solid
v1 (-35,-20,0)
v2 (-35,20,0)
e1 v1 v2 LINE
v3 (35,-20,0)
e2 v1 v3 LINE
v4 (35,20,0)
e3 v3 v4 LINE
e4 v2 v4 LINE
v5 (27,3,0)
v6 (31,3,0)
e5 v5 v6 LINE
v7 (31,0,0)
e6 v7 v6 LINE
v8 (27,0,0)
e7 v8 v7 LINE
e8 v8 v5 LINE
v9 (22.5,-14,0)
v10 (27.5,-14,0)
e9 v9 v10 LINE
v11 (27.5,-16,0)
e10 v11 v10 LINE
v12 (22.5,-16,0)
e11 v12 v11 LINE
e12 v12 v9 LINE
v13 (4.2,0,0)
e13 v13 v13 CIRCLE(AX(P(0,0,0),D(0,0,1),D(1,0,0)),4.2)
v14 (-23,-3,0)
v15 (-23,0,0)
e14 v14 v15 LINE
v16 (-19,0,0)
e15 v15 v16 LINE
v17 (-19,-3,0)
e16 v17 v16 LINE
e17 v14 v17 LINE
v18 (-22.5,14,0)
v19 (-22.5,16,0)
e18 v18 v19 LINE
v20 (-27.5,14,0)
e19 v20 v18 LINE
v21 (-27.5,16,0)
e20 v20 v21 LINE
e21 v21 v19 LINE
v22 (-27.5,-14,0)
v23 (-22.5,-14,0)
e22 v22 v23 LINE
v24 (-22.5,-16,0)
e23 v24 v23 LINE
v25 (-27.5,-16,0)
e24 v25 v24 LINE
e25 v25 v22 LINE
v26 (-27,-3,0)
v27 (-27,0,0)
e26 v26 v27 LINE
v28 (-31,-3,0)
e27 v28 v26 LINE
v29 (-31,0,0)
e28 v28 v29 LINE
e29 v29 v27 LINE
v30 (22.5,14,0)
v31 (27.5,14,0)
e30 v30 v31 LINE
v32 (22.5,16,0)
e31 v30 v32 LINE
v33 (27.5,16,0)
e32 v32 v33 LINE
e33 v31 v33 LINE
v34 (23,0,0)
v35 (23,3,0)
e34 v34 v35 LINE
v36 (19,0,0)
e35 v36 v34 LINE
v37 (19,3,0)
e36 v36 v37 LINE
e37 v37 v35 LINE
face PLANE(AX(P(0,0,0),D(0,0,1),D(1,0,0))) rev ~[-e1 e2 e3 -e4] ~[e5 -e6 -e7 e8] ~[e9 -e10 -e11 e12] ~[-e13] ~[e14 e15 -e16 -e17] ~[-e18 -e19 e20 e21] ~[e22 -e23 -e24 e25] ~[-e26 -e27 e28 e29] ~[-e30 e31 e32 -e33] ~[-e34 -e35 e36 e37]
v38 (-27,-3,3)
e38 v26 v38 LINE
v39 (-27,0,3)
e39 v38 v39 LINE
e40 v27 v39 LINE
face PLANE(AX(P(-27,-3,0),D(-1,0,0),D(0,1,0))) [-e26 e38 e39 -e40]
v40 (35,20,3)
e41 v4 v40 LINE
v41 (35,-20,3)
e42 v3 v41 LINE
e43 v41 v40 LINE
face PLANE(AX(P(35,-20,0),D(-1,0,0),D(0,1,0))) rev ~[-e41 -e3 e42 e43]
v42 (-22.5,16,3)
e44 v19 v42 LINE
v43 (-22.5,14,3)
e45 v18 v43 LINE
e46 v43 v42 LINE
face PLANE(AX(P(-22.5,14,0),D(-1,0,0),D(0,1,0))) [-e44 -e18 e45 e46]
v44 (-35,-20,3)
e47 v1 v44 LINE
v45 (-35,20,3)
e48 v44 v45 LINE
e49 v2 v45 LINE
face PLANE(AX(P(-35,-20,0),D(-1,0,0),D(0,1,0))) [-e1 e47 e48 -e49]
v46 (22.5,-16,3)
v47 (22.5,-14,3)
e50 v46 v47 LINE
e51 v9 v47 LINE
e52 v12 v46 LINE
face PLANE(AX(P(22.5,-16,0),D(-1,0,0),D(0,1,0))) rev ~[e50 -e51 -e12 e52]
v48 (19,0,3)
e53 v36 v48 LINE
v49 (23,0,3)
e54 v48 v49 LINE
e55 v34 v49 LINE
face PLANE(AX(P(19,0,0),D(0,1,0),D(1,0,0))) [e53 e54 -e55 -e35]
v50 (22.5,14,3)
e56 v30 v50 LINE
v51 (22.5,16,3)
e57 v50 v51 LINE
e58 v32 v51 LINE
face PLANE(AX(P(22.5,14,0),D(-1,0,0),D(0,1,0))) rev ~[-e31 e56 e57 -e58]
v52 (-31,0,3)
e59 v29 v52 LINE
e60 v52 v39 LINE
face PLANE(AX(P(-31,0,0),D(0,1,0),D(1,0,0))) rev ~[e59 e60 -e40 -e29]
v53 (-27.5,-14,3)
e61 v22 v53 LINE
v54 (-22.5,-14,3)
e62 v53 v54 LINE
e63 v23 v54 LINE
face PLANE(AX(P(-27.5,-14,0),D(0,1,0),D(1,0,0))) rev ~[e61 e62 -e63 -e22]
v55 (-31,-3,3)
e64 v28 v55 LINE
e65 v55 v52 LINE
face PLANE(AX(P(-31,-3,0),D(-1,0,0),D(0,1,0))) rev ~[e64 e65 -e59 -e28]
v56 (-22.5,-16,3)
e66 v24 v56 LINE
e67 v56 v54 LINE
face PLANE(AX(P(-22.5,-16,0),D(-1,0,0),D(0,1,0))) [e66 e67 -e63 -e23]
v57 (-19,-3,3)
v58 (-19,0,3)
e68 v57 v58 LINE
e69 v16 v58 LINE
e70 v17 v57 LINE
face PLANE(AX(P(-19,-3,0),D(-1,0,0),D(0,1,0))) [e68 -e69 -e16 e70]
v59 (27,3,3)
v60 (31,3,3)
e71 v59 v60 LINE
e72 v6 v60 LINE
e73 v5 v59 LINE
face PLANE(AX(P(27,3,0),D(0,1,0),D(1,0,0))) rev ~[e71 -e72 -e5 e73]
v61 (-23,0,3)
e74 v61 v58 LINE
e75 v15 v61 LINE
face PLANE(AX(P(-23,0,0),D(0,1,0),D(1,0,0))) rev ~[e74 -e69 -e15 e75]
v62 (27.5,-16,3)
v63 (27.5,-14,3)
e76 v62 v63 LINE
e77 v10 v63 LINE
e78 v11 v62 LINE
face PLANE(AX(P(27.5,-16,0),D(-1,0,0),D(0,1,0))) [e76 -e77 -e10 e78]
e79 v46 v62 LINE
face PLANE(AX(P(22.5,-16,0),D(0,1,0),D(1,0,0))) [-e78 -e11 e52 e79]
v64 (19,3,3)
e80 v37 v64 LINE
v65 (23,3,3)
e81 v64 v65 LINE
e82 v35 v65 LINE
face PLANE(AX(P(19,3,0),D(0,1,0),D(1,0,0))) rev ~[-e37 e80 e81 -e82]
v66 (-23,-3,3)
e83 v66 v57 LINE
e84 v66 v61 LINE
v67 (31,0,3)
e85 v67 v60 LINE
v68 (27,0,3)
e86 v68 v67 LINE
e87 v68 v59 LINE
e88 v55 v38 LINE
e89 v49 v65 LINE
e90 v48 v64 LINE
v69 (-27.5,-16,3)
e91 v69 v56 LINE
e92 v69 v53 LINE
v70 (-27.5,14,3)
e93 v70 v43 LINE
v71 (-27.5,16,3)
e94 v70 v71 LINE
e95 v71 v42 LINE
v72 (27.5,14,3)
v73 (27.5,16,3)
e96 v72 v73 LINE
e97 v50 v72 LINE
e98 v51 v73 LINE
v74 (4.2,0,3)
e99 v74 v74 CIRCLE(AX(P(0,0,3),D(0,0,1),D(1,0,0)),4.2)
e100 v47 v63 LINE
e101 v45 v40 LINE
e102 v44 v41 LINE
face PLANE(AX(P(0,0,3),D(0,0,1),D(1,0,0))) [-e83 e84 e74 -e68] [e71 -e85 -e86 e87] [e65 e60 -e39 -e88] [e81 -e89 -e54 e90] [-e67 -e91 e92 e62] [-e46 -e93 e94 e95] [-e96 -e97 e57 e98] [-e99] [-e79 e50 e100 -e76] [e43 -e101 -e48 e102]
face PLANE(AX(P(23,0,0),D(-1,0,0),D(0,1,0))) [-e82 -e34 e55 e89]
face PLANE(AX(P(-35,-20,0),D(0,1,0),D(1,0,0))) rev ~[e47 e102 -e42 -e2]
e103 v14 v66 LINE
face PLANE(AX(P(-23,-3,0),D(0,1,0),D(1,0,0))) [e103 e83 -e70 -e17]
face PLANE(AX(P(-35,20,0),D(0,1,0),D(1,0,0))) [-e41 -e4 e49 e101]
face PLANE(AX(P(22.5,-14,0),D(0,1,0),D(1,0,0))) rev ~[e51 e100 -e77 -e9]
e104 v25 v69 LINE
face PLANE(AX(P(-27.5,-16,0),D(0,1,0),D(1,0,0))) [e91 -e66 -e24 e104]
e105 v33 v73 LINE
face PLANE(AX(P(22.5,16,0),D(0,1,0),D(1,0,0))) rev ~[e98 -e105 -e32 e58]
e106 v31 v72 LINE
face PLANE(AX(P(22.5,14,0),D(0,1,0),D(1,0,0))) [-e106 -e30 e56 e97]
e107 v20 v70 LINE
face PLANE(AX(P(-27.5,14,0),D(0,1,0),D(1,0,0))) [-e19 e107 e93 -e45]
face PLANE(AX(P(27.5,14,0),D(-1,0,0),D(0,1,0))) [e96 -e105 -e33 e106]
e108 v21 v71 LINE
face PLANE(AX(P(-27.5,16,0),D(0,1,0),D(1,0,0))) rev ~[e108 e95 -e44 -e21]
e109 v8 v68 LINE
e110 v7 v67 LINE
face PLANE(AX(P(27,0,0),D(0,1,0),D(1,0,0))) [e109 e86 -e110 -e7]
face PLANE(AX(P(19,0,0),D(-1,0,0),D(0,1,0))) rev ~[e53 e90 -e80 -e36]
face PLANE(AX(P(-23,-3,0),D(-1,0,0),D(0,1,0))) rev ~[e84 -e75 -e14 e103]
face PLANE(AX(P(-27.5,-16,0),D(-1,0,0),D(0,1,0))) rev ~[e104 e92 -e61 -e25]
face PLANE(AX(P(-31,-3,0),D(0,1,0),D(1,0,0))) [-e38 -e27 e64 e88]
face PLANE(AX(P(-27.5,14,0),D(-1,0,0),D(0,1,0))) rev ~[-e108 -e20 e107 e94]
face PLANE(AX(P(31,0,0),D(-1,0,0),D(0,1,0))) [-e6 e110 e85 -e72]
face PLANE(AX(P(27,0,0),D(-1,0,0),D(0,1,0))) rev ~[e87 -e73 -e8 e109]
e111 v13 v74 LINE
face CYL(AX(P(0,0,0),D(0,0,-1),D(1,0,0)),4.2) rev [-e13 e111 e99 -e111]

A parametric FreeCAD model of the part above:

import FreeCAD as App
import Part
import Sketcher

doc = App.newDocument("Part")
params = doc.addObject("Spreadsheet::Sheet", "Params")
for row, (alias, value) in enumerate([
    ("sketch1_diameter", "8.4 mm"),
    ("sketch1_width", "70 mm"),
    ("sketch1_width2", "5 mm"),
    ("sketch1_width3", "4 mm"),
    ("sketch1_height", "40 mm"),
    ("pad1_length", "3 mm"),
], start=1):
    params.set(f"A{row}", alias)
    params.set(f"B{row}", "=" + value)
    params.setAlias(f"B{row}", alias)

body = doc.addObject("PartDesign::Body", "Body")

# Sketch on XY plane
sketch1 = body.newObject("Sketcher::SketchObject", "Sketch")
sketch1.AttachmentSupport = (doc.getObject("XY_Plane"), [""])
sketch1.MapMode = "FlatFace"
sketch1.addGeometry([
    Part.LineSegment(App.Vector(-35, 20, 0), App.Vector(-35, -20, 0)),  # 0
    Part.LineSegment(App.Vector(-35, -20, 0), App.Vector(35, -20, 0)),  # 1
    Part.LineSegment(App.Vector(35, -20, 0), App.Vector(35, 20, 0)),  # 2
    Part.LineSegment(App.Vector(35, 20, 0), App.Vector(-35, 20, 0)),  # 3
    Part.LineSegment(App.Vector(-22.5, -16, 0), App.Vector(-27.5, -16, 0)),  # 4
    Part.LineSegment(App.Vector(-27.5, -16, 0), App.Vector(-27.5, -14, 0)),  # 5
    Part.LineSegment(App.Vector(-27.5, -14, 0), App.Vector(-22.5, -14, 0)),  # 6
    Part.LineSegment(App.Vector(-22.5, -14, 0), App.Vector(-22.5, -16, 0)),  # 7
    Part.LineSegment(App.Vector(-27, -3, 0), App.Vector(-31, -3, 0)),  # 8
    Part.LineSegment(App.Vector(-31, -3, 0), App.Vector(-31, 0, 0)),  # 9
    Part.LineSegment(App.Vector(-31, 0, 0), App.Vector(-27, 0, 0)),  # 10
    Part.LineSegment(App.Vector(-27, 0, 0), App.Vector(-27, -3, 0)),  # 11
    Part.LineSegment(App.Vector(-19, -3, 0), App.Vector(-23, -3, 0)),  # 12
    Part.LineSegment(App.Vector(-23, -3, 0), App.Vector(-23, 0, 0)),  # 13
    Part.LineSegment(App.Vector(-23, 0, 0), App.Vector(-19, 0, 0)),  # 14
    Part.LineSegment(App.Vector(-19, 0, 0), App.Vector(-19, -3, 0)),  # 15
    Part.LineSegment(App.Vector(27.5, -16, 0), App.Vector(22.5, -16, 0)),  # 16
    Part.LineSegment(App.Vector(22.5, -16, 0), App.Vector(22.5, -14, 0)),  # 17
    Part.LineSegment(App.Vector(22.5, -14, 0), App.Vector(27.5, -14, 0)),  # 18
    Part.LineSegment(App.Vector(27.5, -14, 0), App.Vector(27.5, -16, 0)),  # 19
    Part.LineSegment(App.Vector(-22.5, 14, 0), App.Vector(-27.5, 14, 0)),  # 20
    Part.LineSegment(App.Vector(-27.5, 14, 0), App.Vector(-27.5, 16, 0)),  # 21
    Part.LineSegment(App.Vector(-27.5, 16, 0), App.Vector(-22.5, 16, 0)),  # 22
    Part.LineSegment(App.Vector(-22.5, 16, 0), App.Vector(-22.5, 14, 0)),  # 23
    Part.Circle(App.Vector(0, 0, 0), App.Vector(0, 0, 1), 4.2),  # 24
    Part.LineSegment(App.Vector(23, 0, 0), App.Vector(19, 0, 0)),  # 25
    Part.LineSegment(App.Vector(19, 0, 0), App.Vector(19, 3, 0)),  # 26
    Part.LineSegment(App.Vector(19, 3, 0), App.Vector(23, 3, 0)),  # 27
    Part.LineSegment(App.Vector(23, 3, 0), App.Vector(23, 0, 0)),  # 28
    Part.LineSegment(App.Vector(31, 0, 0), App.Vector(27, 0, 0)),  # 29
    Part.LineSegment(App.Vector(27, 0, 0), App.Vector(27, 3, 0)),  # 30
    Part.LineSegment(App.Vector(27, 3, 0), App.Vector(31, 3, 0)),  # 31
    Part.LineSegment(App.Vector(31, 3, 0), App.Vector(31, 0, 0)),  # 32
    Part.LineSegment(App.Vector(27.5, 14, 0), App.Vector(22.5, 14, 0)),  # 33
    Part.LineSegment(App.Vector(22.5, 14, 0), App.Vector(22.5, 16, 0)),  # 34
    Part.LineSegment(App.Vector(22.5, 16, 0), App.Vector(27.5, 16, 0)),  # 35
    Part.LineSegment(App.Vector(27.5, 16, 0), App.Vector(27.5, 14, 0)),  # 36
], False)
sketch1.addConstraint([
    Sketcher.Constraint("Coincident", 0, 2, 1, 1),
    Sketcher.Constraint("Coincident", 1, 2, 2, 1),
    Sketcher.Constraint("Coincident", 2, 2, 3, 1),
    Sketcher.Constraint("Coincident", 3, 2, 0, 1),
    Sketcher.Constraint("Coincident", 4, 2, 5, 1),
    Sketcher.Constraint("Coincident", 5, 2, 6, 1),
    Sketcher.Constraint("Coincident", 6, 2, 7, 1),
    Sketcher.Constraint("Coincident", 7, 2, 4, 1),
    Sketcher.Constraint("Coincident", 8, 2, 9, 1),
    Sketcher.Constraint("Coincident", 9, 2, 10, 1),
    Sketcher.Constraint("Coincident", 10, 2, 11, 1),
    Sketcher.Constraint("Coincident", 11, 2, 8, 1),
    Sketcher.Constraint("Coincident", 12, 2, 13, 1),
    Sketcher.Constraint("Coincident", 13, 2, 14, 1),
    Sketcher.Constraint("Coincident", 14, 2, 15, 1),
    Sketcher.Constraint("Coincident", 15, 2, 12, 1),
    Sketcher.Constraint("Coincident", 16, 2, 17, 1),
    Sketcher.Constraint("Coincident", 17, 2, 18, 1),
    Sketcher.Constraint("Coincident", 18, 2, 19, 1),
    Sketcher.Constraint("Coincident", 19, 2, 16, 1),
    Sketcher.Constraint("Coincident", 20, 2, 21, 1),
    Sketcher.Constraint("Coincident", 21, 2, 22, 1),
    Sketcher.Constraint("Coincident", 22, 2, 23, 1),
    Sketcher.Constraint("Coincident", 23, 2, 20, 1),
    Sketcher.Constraint("Coincident", 25, 2, 26, 1),
    Sketcher.Constraint("Coincident", 26, 2, 27, 1),
    Sketcher.Constraint("Coincident", 27, 2, 28, 1),
    Sketcher.Constraint("Coincident", 28, 2, 25, 1),
    Sketcher.Constraint("Coincident", 29, 2, 30, 1),
    Sketcher.Constraint("Coincident", 30, 2, 31, 1),
    Sketcher.Constraint("Coincident", 31, 2, 32, 1),
    Sketcher.Constraint("Coincident", 32, 2, 29, 1),
    Sketcher.Constraint("Coincident", 33, 2, 34, 1),
    Sketcher.Constraint("Coincident", 34, 2, 35, 1),
    Sketcher.Constraint("Coincident", 35, 2, 36, 1),
    Sketcher.Constraint("Coincident", 36, 2, 33, 1),
    Sketcher.Constraint("Vertical", 0),
    Sketcher.Constraint("Horizontal", 1),
    Sketcher.Constraint("Vertical", 2),
    Sketcher.Constraint("Horizontal", 3),
    Sketcher.Constraint("Horizontal", 4),
    Sketcher.Constraint("Vertical", 5),
    Sketcher.Constraint("Horizontal", 6),
    Sketcher.Constraint("Vertical", 7),
    Sketcher.Constraint("Horizontal", 8),
    Sketcher.Constraint("Vertical", 9),
    Sketcher.Constraint("Horizontal", 10),
    Sketcher.Constraint("Vertical", 11),
    Sketcher.Constraint("Horizontal", 12),
    Sketcher.Constraint("Vertical", 13),
    Sketcher.Constraint("Horizontal", 14),
    Sketcher.Constraint("Vertical", 15),
    Sketcher.Constraint("Horizontal", 16),
    Sketcher.Constraint("Vertical", 17),
    Sketcher.Constraint("Horizontal", 18),
    Sketcher.Constraint("Vertical", 19),
    Sketcher.Constraint("Horizontal", 20),
    Sketcher.Constraint("Vertical", 21),
    Sketcher.Constraint("Horizontal", 22),
    Sketcher.Constraint("Vertical", 23),
    Sketcher.Constraint("Horizontal", 25),
    Sketcher.Constraint("Vertical", 26),
    Sketcher.Constraint("Horizontal", 27),
    Sketcher.Constraint("Vertical", 28),
    Sketcher.Constraint("Horizontal", 29),
    Sketcher.Constraint("Vertical", 30),
    Sketcher.Constraint("Horizontal", 31),
    Sketcher.Constraint("Vertical", 32),
    Sketcher.Constraint("Horizontal", 33),
    Sketcher.Constraint("Vertical", 34),
    Sketcher.Constraint("Horizontal", 35),
    Sketcher.Constraint("Vertical", 36),
    Sketcher.Constraint("Coincident", 24, 3, -1, 1),
    Sketcher.Constraint("Symmetric", 0, 2, 2, 2, -1, 1),
    Sketcher.Constraint("Symmetric", 18, 2, 20, 2, -1, 1),
    Sketcher.Constraint("Symmetric", 16, 2, 22, 2, -1, 1),
    Sketcher.Constraint("Symmetric", 14, 2, 25, 2, -1, 1),
    Sketcher.Constraint("Symmetric", 12, 2, 27, 2, -1, 1),
    Sketcher.Constraint("Symmetric", 10, 2, 29, 2, -1, 1),
    Sketcher.Constraint("Symmetric", 8, 2, 31, 2, -1, 1),
    Sketcher.Constraint("Symmetric", 6, 2, 33, 2, -1, 1),
    Sketcher.Constraint("Symmetric", 4, 2, 35, 2, -1, 1),
    Sketcher.Constraint("Symmetric", 7, 2, 16, 2, -2),
    Sketcher.Constraint("Symmetric", 5, 2, 18, 2, -2),
    Sketcher.Constraint("PointOnObject", 9, 2, -1),
    Sketcher.Constraint("PointOnObject", 13, 2, -1),
    Sketcher.Constraint("Horizontal", 11, 2, 12, 2),
    Sketcher.Constraint("Equal", 10, 12),
    Sketcher.Constraint("Diameter", 24, 8.4),
    Sketcher.Constraint("DistanceX", 1, 1, 1, 2, 70.0),
    Sketcher.Constraint("DistanceX", 4, 2, 4, 1, 5.0),
    Sketcher.Constraint("DistanceX", 8, 2, 8, 1, 4.0),
    Sketcher.Constraint("DistanceY", 0, 2, 0, 1, 40.0),
    Sketcher.Constraint("DistanceY", 5, 1, 5, 2, 2.0),
    Sketcher.Constraint("DistanceY", 9, 1, 9, 2, 3.0),
    Sketcher.Constraint("DistanceY", 4, 2, -1, 1, 16.0),
    Sketcher.Constraint("DistanceX", 8, 2, -1, 1, 31.0),
    Sketcher.Constraint("DistanceX", 12, 2, -1, 1, 23.0),
    Sketcher.Constraint("DistanceX", 4, 2, -1, 1, 27.5),
])
sketch1.setExpression("Constraints[88]", "Params.sketch1_diameter")
sketch1.setExpression("Constraints[89]", "Params.sketch1_width")
sketch1.setExpression("Constraints[90]", "Params.sketch1_width2")
sketch1.setExpression("Constraints[91]", "Params.sketch1_width3")
sketch1.setExpression("Constraints[92]", "Params.sketch1_height")
pad1 = body.newObject("PartDesign::Pad", "Pad")
pad1.Profile = sketch1
pad1.setExpression("Length", "Params.pad1_length")

doc.recompute()
